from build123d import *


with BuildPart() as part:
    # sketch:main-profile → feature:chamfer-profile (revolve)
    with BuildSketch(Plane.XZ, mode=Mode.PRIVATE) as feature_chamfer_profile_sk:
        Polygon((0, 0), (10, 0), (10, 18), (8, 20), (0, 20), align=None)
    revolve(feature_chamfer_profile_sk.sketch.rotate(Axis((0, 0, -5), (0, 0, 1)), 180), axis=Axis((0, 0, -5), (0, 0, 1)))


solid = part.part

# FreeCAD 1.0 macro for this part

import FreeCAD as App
import Part
import Sketcher

V = App.Vector


def add_polygon(sketch, points):
    """Adds a closed chain of lines whose ends are joined by coincident constraints."""
    first, n = sketch.GeometryCount, len(points)
    for a, b in zip(points, points[1:] + points[:1]):
        sketch.addGeometry(Part.LineSegment(App.Vector(*a, 0), App.Vector(*b, 0)), False)
    for i in range(n):
        sketch.addConstraint(Sketcher.Constraint("Coincident", first + i, 2, first + (i + 1) % n, 1))

doc = App.newDocument("Part")
body = doc.addObject("PartDesign::Body", "Body")

sketch1 = body.newObject("Sketcher::SketchObject", "Sketch")
sketch1.AttachmentSupport = (doc.getObject("XZ_Plane"), [""])
sketch1.MapMode = "FlatFace"
add_polygon(sketch1, [(0, 0), (10, 0), (10, 18), (8, 20), (0, 20)])
sketch1.addConstraint(Sketcher.Constraint("Horizontal", 0))
sketch1.addConstraint(Sketcher.Constraint("Vertical", 1))
sketch1.addConstraint(Sketcher.Constraint("Horizontal", 3))
sketch1.addConstraint(Sketcher.Constraint("Vertical", 4))
sketch1.addConstraint(Sketcher.Constraint("Coincident", 4, 2, -1, 1))
sketch1.addConstraint(Sketcher.Constraint("DistanceX", 0, 1, 0, 2, 10.0))
sketch1.addConstraint(Sketcher.Constraint("DistanceX", 3, 2, 3, 1, 8.0))
sketch1.addConstraint(Sketcher.Constraint("DistanceY", 1, 1, 1, 2, 18.0))
sketch1.addConstraint(Sketcher.Constraint("DistanceY", 4, 2, 4, 1, 20.0))
revolution = body.newObject("PartDesign::Revolution", "Revolution")
revolution.Profile = sketch1
revolution.ReferenceAxis = (sketch1, ["V_Axis"])
revolution.Angle = 360

doc.recompute()
